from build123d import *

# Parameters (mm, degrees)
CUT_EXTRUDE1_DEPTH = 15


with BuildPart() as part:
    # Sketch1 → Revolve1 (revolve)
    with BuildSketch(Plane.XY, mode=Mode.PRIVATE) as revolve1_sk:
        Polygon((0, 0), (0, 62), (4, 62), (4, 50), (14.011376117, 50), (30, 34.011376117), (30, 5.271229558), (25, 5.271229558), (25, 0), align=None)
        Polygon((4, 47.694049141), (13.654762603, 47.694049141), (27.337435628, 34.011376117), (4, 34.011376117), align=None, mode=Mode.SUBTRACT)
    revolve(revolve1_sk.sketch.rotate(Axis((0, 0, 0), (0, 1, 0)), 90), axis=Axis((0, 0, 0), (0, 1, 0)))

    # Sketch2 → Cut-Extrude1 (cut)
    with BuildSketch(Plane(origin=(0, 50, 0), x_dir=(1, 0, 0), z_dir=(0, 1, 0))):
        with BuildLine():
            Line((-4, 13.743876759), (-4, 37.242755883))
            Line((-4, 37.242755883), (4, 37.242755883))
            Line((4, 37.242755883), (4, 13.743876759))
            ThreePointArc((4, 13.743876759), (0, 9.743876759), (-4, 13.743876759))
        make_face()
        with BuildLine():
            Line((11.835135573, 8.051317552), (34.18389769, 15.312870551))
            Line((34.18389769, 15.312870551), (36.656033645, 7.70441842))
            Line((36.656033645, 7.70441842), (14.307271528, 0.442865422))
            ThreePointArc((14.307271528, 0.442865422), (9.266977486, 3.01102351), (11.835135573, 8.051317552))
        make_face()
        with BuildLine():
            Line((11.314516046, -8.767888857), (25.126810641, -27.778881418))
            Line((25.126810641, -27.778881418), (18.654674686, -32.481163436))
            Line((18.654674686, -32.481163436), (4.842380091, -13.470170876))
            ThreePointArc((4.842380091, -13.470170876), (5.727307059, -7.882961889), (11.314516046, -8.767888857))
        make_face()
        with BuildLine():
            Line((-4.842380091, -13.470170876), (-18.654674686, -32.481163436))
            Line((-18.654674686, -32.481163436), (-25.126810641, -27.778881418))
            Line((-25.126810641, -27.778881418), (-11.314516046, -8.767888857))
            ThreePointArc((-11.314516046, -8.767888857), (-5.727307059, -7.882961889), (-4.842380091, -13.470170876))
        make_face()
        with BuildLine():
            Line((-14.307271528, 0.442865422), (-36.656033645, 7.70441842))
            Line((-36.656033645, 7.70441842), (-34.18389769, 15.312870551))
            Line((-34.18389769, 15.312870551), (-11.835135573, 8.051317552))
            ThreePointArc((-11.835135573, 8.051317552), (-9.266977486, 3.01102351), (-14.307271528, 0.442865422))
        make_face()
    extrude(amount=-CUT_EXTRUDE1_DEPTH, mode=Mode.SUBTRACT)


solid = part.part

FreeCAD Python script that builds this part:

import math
import FreeCAD as App
import Part
import Sketcher
Q = App.Units.Quantity


def add_polygon(sketch, points):
    """Adds a closed chain of lines whose ends are joined by coincident constraints."""
    first, n = sketch.GeometryCount, len(points)
    for a, b in zip(points, points[1:] + points[:1]):
        sketch.addGeometry(Part.LineSegment(App.Vector(*a, 0), App.Vector(*b, 0)), False)
    for i in range(n):
        sketch.addConstraint(Sketcher.Constraint("Coincident", first + i, 2, first + (i + 1) % n, 1))

doc = App.newDocument("Part")
params = doc.addObject("Spreadsheet::Sheet", "Params")
for row, (alias, value) in enumerate([
    ("sketch1_width", "25 mm"),
    ("sketch1_width2", "5 mm"),
    ("sketch1_width3", "4 mm"),
    ("sketch1_height", "62 mm"),
    ("sketch1_height2", "12 mm"),
    ("revolution_angle", "360 deg"),
    ("sketch2_radius", "4 mm"),
    ("pocket1_length", "15 mm"),
], start=1):
    params.set(f"A{row}", alias)
    params.set(f"B{row}", "=" + value)
    params.setAlias(f"B{row}", alias)

body = doc.addObject("PartDesign::Body", "Body")

sketch1 = body.newObject("Sketcher::SketchObject", "Sketch")
sketch1.AttachmentSupport = (doc.getObject("XY_Plane"), [""])
sketch1.MapMode = "FlatFace"
add_polygon(sketch1, [(0, 62), (0, 0), (25, 0), (25, 5.3), (30, 5.3), (30, 34), (14, 50), (4, 50), (4, 62)])
add_polygon(sketch1, [(4, 47.7), (13.7, 47.7), (27.3, 34), (4, 34)])
sketch1.addConstraint(Sketcher.Constraint("Vertical", 0))
sketch1.addConstraint(Sketcher.Constraint("Horizontal", 1))
sketch1.addConstraint(Sketcher.Constraint("Vertical", 2))
sketch1.addConstraint(Sketcher.Constraint("Horizontal", 3))
sketch1.addConstraint(Sketcher.Constraint("Vertical", 4))
sketch1.addConstraint(Sketcher.Constraint("Horizontal", 6))
sketch1.addConstraint(Sketcher.Constraint("Vertical", 7))
sketch1.addConstraint(Sketcher.Constraint("Horizontal", 8))
sketch1.addConstraint(Sketcher.Constraint("Horizontal", 9))
sketch1.addConstraint(Sketcher.Constraint("Horizontal", 11))
sketch1.addConstraint(Sketcher.Constraint("Vertical", 12))
sketch1.addConstraint(Sketcher.Constraint("Coincident", 0, 2, -1, 1))
sketch1.addConstraint(Sketcher.Constraint("Parallel", 5, 10))
sketch1.addConstraint(Sketcher.Constraint("Horizontal", 4, 2, 10, 2))
sketch1.addConstraint(Sketcher.Constraint("Vertical", 7, 2, 11, 2))
sketch1.addConstraint(Sketcher.Constraint("DistanceX", 1, 1, 1, 2, Q("25 mm")))
sketch1.addConstraint(Sketcher.Constraint("DistanceX", 3, 1, 3, 2, Q("5 mm")))
sketch1.addConstraint(Sketcher.Constraint("DistanceX", 8, 2, 8, 1, Q("4 mm")))
sketch1.addConstraint(Sketcher.Constraint("DistanceY", 0, 2, 0, 1, Q("62 mm")))
sketch1.addConstraint(Sketcher.Constraint("DistanceY", 7, 1, 7, 2, Q("12 mm")))
sketch1.addConstraint(Sketcher.Constraint("Angle", 5, Q("135 deg")))
sketch1.addConstraint(Sketcher.Constraint("DistanceY", 2, 1, 2, 2, Q("5.27123 mm")))
sketch1.addConstraint(Sketcher.Constraint("Distance", 5, Q("22.611329 mm")))
sketch1.addConstraint(Sketcher.Constraint("Distance", 10, Q("19.350222 mm")))
sketch1.addConstraint(Sketcher.Constraint("DistanceX", 9, 1, 9, 2, Q("9.654763 mm")))
sketch1.setExpression("Constraints[28]", "Params.sketch1_width")
sketch1.setExpression("Constraints[29]", "Params.sketch1_width2")
sketch1.setExpression("Constraints[30]", "Params.sketch1_width3")
sketch1.setExpression("Constraints[31]", "Params.sketch1_height")
sketch1.setExpression("Constraints[32]", "Params.sketch1_height2")
revolution = body.newObject("PartDesign::Revolution", "Revolution")
revolution.Profile = sketch1
revolution.ReferenceAxis = (sketch1, ["V_Axis"])
revolution.setExpression("Angle", "Params.revolution_angle")

sketch2 = body.newObject("Sketcher::SketchObject", "Sketch001")
sketch2.AttachmentSupport = (doc.getObject("XZ_Plane"), [""])
sketch2.MapMode = "FlatFace"
sketch2.AttachmentOffset = App.Placement(App.Vector(0, 0, -50), App.Rotation())
sketch2.addGeometry(Part.LineSegment(App.Vector(-4, -37.2, 0), App.Vector(-4, -13.7, 0)), False)
sketch2.addGeometry(Part.ArcOfCircle(Part.Circle(App.Vector(0, -13.7, 0), App.Vector(0, 0, 1), 4), math.radians(0), math.radians(180)), False)
sketch2.addGeometry(Part.LineSegment(App.Vector(4, -13.7, 0), App.Vector(4, -37.2, 0)), False)
sketch2.addGeometry(Part.LineSegment(App.Vector(4, -37.2, 0), App.Vector(-4, -37.2, 0)), False)
sketch2.addGeometry(Part.LineSegment(App.Vector(34.2, -15.3, 0), App.Vector(11.8, -8.1, 0)), False)
sketch2.addGeometry(Part.ArcOfCircle(Part.Circle(App.Vector(13.1, -4.2, 0), App.Vector(0, 0, 1), 4), math.radians(72), math.radians(252)), False)
sketch2.addGeometry(Part.LineSegment(App.Vector(14.3, -0.4, 0), App.Vector(36.7, -7.7, 0)), False)
sketch2.addGeometry(Part.LineSegment(App.Vector(36.7, -7.7, 0), App.Vector(34.2, -15.3, 0)), False)
sketch2.addGeometry(Part.LineSegment(App.Vector(25.1, 27.8, 0), App.Vector(11.3, 8.8, 0)), False)
sketch2.addGeometry(Part.ArcOfCircle(Part.Circle(App.Vector(8.1, 11.1, 0), App.Vector(0, 0, 1), 4), math.radians(144), math.radians(324)), False)
sketch2.addGeometry(Part.LineSegment(App.Vector(4.8, 13.5, 0), App.Vector(18.7, 32.5, 0)), False)
sketch2.addGeometry(Part.LineSegment(App.Vector(18.7, 32.5, 0), App.Vector(25.1, 27.8, 0)), False)
sketch2.addGeometry(Part.LineSegment(App.Vector(-18.7, 32.5, 0), App.Vector(-4.8, 13.5, 0)), False)
sketch2.addGeometry(Part.ArcOfCircle(Part.Circle(App.Vector(-8.1, 11.1, 0), App.Vector(0, 0, 1), 4), math.radians(-144), math.radians(36)), False)
sketch2.addGeometry(Part.LineSegment(App.Vector(-11.3, 8.8, 0), App.Vector(-25.1, 27.8, 0)), False)
sketch2.addGeometry(Part.LineSegment(App.Vector(-25.1, 27.8, 0), App.Vector(-18.7, 32.5, 0)), False)
sketch2.addGeometry(Part.LineSegment(App.Vector(-36.7, -7.7, 0), App.Vector(-14.3, -0.4, 0)), False)
sketch2.addGeometry(Part.ArcOfCircle(Part.Circle(App.Vector(-13.1, -4.2, 0), App.Vector(0, 0, 1), 4), math.radians(-72), math.radians(108)), False)
sketch2.addGeometry(Part.LineSegment(App.Vector(-11.8, -8.1, 0), App.Vector(-34.2, -15.3, 0)), False)
sketch2.addGeometry(Part.LineSegment(App.Vector(-34.2, -15.3, 0), App.Vector(-36.7, -7.7, 0)), False)
sketch2.addConstraint(Sketcher.Constraint("Tangent", 0, 2, 1, 2))
sketch2.addConstraint(Sketcher.Constraint("Tangent", 1, 1, 2, 1))
sketch2.addConstraint(Sketcher.Constraint("Coincident", 2, 2, 3, 1))
sketch2.addConstraint(Sketcher.Constraint("Coincident", 3, 2, 0, 1))
sketch2.addConstraint(Sketcher.Constraint("Tangent", 4, 2, 5, 2))
sketch2.addConstraint(Sketcher.Constraint("Tangent", 5, 1, 6, 1))
sketch2.addConstraint(Sketcher.Constraint("Coincident", 6, 2, 7, 1))
sketch2.addConstraint(Sketcher.Constraint("Coincident", 7, 2, 4, 1))
sketch2.addConstraint(Sketcher.Constraint("Tangent", 8, 2, 9, 2))
sketch2.addConstraint(Sketcher.Constraint("Tangent", 9, 1, 10, 1))
sketch2.addConstraint(Sketcher.Constraint("Coincident", 10, 2, 11, 1))
sketch2.addConstraint(Sketcher.Constraint("Coincident", 11, 2, 8, 1))
sketch2.addConstraint(Sketcher.Constraint("Tangent", 12, 2, 13, 2))
sketch2.addConstraint(Sketcher.Constraint("Tangent", 13, 1, 14, 1))
sketch2.addConstraint(Sketcher.Constraint("Coincident", 14, 2, 15, 1))
sketch2.addConstraint(Sketcher.Constraint("Coincident", 15, 2, 12, 1))
sketch2.addConstraint(Sketcher.Constraint("Tangent", 16, 2, 17, 2))
sketch2.addConstraint(Sketcher.Constraint("Tangent", 17, 1, 18, 1))
sketch2.addConstraint(Sketcher.Constraint("Coincident", 18, 2, 19, 1))
sketch2.addConstraint(Sketcher.Constraint("Coincident", 19, 2, 16, 1))
sketch2.addConstraint(Sketcher.Constraint("Vertical", 0))
sketch2.addConstraint(Sketcher.Constraint("Vertical", 2))
sketch2.addConstraint(Sketcher.Constraint("Horizontal", 3))
sketch2.addConstraint(Sketcher.Constraint("Equal", 1, 5))
sketch2.addConstraint(Sketcher.Constraint("Equal", 5, 9))
sketch2.addConstraint(Sketcher.Constraint("Equal", 9, 13))
sketch2.addConstraint(Sketcher.Constraint("Equal", 13, 17))
sketch2.addConstraint(Sketcher.Constraint("Symmetric", 9, 3, 13, 3, -2))
sketch2.addConstraint(Sketcher.Constraint("Symmetric", 5, 3, 17, 3, -2))
sketch2.addConstraint(Sketcher.Constraint("Symmetric", 11, 2, 14, 2, -2))
sketch2.addConstraint(Sketcher.Constraint("Symmetric", 10, 2, 15, 2, -2))
sketch2.addConstraint(Sketcher.Constraint("Symmetric", 7, 2, 18, 2, -2))
sketch2.addConstraint(Sketcher.Constraint("Symmetric", 6, 2, 19, 2, -2))
sketch2.addConstraint(Sketcher.Constraint("PointOnObject", 1, 3, -2))
sketch2.addConstraint(Sketcher.Constraint("Parallel", 4, 6))
sketch2.addConstraint(Sketcher.Constraint("Perpendicular", 6, 7))
sketch2.addConstraint(Sketcher.Constraint("Parallel", 8, 10))
sketch2.addConstraint(Sketcher.Constraint("Perpendicular", 10, 11))
sketch2.addConstraint(Sketcher.Constraint("Equal", 6, 8))
sketch2.addConstraint(Sketcher.Constraint("Radius", 1, Q("4 mm")))
sketch2.addConstraint(Sketcher.Constraint("Angle", 4, Q("162 deg")))
sketch2.addConstraint(Sketcher.Constraint("Angle", 8, Q("-126 deg")))
sketch2.addConstraint(Sketcher.Constraint("DistanceY", 0, 1, 0, 2, Q("23.498879 mm")))
sketch2.addConstraint(Sketcher.Constraint("DistanceX", 4, 2, 6, 2, Q("24.820898 mm")))
sketch2.addConstraint(Sketcher.Constraint("DistanceY", 5, 3, -1, 1, Q("4.247091 mm")))
sketch2.addConstraint(Sketcher.Constraint("DistanceX", -1, 1, 9, 3, Q("8.078448 mm")))
sketch2.addConstraint(Sketcher.Constraint("DistanceY", -1, 1, 9, 3, Q("11.11903 mm")))
sketch2.addConstraint(Sketcher.Constraint("DistanceX", -1, 1, 5, 1, Q("14.307272 mm")))
sketch2.addConstraint(Sketcher.Constraint("DistanceY", 1, 1, 4, 2, Q("5.692559 mm")))
sketch2.setExpression("Constraints[39]", "Params.sketch2_radius")
pocket1 = body.newObject("PartDesign::Pocket", "Pocket")
pocket1.Profile = sketch2
pocket1.setExpression("Length", "Params.pocket1_length")
pocket1.Reversed = True

doc.recompute()
